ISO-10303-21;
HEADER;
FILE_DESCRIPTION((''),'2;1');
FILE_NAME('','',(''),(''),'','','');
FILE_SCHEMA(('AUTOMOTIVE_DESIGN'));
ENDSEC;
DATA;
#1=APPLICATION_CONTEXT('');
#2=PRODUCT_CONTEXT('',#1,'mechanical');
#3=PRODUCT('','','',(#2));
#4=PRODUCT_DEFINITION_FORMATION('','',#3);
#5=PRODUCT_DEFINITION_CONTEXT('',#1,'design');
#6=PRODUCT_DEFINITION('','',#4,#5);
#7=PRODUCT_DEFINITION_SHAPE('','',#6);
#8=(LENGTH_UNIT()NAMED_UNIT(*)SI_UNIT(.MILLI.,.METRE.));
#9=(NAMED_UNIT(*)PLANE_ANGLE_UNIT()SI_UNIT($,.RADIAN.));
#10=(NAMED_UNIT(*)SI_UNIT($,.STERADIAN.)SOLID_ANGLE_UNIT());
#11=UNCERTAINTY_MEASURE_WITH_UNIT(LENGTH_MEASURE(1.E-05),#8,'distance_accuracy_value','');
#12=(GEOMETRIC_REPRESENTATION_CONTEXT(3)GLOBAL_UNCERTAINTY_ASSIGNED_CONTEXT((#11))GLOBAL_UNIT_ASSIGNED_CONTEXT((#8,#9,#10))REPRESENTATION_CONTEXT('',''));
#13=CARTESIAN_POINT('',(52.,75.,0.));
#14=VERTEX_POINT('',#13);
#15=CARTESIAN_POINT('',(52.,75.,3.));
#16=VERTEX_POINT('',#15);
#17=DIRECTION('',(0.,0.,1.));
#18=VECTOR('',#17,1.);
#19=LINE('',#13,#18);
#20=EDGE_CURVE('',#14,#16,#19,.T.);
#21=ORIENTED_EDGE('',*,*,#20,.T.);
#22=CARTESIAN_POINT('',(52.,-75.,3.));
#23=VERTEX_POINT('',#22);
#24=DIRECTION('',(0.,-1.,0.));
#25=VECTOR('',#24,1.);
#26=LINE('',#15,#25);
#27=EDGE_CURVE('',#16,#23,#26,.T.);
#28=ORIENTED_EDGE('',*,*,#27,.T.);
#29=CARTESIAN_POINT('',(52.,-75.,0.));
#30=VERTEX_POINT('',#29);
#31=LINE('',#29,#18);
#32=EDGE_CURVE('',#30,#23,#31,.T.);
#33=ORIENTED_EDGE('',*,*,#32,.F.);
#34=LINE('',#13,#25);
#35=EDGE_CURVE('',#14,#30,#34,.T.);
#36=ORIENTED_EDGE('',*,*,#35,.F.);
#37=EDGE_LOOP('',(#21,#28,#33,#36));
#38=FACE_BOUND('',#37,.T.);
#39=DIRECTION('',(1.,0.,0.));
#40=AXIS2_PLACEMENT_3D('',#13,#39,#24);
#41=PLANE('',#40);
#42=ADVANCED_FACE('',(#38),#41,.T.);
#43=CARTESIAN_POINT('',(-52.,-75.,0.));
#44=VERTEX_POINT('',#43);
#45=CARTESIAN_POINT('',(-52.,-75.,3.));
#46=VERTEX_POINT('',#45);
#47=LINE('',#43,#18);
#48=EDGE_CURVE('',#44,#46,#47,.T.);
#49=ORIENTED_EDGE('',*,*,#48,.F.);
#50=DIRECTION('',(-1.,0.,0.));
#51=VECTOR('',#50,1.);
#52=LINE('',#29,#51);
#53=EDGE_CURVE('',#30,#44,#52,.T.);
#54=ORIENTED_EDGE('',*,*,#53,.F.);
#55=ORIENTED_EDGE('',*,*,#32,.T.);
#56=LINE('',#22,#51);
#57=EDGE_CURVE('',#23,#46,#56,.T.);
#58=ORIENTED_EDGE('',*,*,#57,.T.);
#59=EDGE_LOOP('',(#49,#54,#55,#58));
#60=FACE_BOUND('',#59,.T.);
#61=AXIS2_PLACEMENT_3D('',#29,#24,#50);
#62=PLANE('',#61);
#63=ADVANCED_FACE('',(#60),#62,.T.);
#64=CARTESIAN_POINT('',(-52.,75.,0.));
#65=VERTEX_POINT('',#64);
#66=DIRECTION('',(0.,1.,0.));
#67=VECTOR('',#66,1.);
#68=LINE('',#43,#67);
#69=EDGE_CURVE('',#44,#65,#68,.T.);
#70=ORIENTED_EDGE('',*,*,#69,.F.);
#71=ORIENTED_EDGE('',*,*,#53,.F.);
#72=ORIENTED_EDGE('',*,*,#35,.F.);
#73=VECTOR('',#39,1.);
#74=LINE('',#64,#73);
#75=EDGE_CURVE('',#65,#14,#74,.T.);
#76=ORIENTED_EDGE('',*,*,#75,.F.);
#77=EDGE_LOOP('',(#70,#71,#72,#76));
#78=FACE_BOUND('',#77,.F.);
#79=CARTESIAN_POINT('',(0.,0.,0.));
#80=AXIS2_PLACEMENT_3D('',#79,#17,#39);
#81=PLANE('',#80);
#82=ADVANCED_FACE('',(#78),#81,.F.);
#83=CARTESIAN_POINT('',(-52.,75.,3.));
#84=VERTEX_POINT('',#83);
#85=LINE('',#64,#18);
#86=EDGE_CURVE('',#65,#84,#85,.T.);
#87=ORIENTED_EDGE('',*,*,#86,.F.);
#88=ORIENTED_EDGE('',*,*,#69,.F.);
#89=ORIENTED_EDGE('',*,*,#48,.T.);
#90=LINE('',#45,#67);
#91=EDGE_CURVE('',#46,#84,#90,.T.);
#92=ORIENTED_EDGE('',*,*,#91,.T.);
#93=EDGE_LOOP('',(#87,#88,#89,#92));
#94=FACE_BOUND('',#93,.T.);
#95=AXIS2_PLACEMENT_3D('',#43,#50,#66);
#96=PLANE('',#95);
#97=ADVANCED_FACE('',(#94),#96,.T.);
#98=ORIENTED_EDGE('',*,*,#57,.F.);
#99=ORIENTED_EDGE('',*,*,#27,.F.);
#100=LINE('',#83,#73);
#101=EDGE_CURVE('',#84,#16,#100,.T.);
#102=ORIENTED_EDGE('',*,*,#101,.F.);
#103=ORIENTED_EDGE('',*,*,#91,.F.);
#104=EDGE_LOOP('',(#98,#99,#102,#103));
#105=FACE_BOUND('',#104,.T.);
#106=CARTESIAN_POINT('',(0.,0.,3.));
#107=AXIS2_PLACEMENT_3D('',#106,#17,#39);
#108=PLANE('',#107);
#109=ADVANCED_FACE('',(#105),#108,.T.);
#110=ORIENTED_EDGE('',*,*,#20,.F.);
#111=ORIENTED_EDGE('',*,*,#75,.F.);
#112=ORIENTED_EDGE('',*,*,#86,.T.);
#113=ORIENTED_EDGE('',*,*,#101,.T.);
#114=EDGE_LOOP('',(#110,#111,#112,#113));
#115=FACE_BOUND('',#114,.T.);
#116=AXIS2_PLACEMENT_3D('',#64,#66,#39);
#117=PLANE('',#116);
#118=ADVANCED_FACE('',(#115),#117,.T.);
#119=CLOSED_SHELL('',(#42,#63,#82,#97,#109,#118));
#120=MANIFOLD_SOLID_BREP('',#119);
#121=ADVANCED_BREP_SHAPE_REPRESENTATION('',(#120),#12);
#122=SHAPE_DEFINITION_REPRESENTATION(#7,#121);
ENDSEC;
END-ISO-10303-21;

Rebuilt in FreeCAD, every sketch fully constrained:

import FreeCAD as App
import Part
import Sketcher
Q = App.Units.Quantity

doc = App.newDocument("Part")
body = doc.addObject("PartDesign::Body", "Body")

# Sketch on XY plane
sketch1 = body.newObject("Sketcher::SketchObject", "Sketch")
sketch1.AttachmentSupport = (doc.getObject("XY_Plane"), [""])
sketch1.MapMode = "FlatFace"
sketch1.addGeometry([
    Part.LineSegment(App.Vector(52, 75, 0), App.Vector(-52, 75, 0)),
    Part.LineSegment(App.Vector(-52, 75, 0), App.Vector(-52, -75, 0)),
    Part.LineSegment(App.Vector(-52, -75, 0), App.Vector(52, -75, 0)),
    Part.LineSegment(App.Vector(52, -75, 0), App.Vector(52, 75, 0)),
], False)
sketch1.addConstraint([
    Sketcher.Constraint("Coincident", 0, 2, 1, 1),
    Sketcher.Constraint("Coincident", 1, 2, 2, 1),
    Sketcher.Constraint("Coincident", 2, 2, 3, 1),
    Sketcher.Constraint("Coincident", 3, 2, 0, 1),
    Sketcher.Constraint("Horizontal", 0),
    Sketcher.Constraint("Vertical", 1),
    Sketcher.Constraint("Horizontal", 2),
    Sketcher.Constraint("Vertical", 3),
    Sketcher.Constraint("Symmetric", 0, 2, 2, 2, -1, 1),
    Sketcher.Constraint("DistanceX", 0, 2, 0, 1, Q("104 mm")),
    Sketcher.Constraint("DistanceY", 1, 2, 1, 1, Q("150 mm")),
])
pad1 = body.newObject("PartDesign::Pad", "Pad")
pad1.Profile = sketch1
pad1.Length = 3

doc.recompute()
